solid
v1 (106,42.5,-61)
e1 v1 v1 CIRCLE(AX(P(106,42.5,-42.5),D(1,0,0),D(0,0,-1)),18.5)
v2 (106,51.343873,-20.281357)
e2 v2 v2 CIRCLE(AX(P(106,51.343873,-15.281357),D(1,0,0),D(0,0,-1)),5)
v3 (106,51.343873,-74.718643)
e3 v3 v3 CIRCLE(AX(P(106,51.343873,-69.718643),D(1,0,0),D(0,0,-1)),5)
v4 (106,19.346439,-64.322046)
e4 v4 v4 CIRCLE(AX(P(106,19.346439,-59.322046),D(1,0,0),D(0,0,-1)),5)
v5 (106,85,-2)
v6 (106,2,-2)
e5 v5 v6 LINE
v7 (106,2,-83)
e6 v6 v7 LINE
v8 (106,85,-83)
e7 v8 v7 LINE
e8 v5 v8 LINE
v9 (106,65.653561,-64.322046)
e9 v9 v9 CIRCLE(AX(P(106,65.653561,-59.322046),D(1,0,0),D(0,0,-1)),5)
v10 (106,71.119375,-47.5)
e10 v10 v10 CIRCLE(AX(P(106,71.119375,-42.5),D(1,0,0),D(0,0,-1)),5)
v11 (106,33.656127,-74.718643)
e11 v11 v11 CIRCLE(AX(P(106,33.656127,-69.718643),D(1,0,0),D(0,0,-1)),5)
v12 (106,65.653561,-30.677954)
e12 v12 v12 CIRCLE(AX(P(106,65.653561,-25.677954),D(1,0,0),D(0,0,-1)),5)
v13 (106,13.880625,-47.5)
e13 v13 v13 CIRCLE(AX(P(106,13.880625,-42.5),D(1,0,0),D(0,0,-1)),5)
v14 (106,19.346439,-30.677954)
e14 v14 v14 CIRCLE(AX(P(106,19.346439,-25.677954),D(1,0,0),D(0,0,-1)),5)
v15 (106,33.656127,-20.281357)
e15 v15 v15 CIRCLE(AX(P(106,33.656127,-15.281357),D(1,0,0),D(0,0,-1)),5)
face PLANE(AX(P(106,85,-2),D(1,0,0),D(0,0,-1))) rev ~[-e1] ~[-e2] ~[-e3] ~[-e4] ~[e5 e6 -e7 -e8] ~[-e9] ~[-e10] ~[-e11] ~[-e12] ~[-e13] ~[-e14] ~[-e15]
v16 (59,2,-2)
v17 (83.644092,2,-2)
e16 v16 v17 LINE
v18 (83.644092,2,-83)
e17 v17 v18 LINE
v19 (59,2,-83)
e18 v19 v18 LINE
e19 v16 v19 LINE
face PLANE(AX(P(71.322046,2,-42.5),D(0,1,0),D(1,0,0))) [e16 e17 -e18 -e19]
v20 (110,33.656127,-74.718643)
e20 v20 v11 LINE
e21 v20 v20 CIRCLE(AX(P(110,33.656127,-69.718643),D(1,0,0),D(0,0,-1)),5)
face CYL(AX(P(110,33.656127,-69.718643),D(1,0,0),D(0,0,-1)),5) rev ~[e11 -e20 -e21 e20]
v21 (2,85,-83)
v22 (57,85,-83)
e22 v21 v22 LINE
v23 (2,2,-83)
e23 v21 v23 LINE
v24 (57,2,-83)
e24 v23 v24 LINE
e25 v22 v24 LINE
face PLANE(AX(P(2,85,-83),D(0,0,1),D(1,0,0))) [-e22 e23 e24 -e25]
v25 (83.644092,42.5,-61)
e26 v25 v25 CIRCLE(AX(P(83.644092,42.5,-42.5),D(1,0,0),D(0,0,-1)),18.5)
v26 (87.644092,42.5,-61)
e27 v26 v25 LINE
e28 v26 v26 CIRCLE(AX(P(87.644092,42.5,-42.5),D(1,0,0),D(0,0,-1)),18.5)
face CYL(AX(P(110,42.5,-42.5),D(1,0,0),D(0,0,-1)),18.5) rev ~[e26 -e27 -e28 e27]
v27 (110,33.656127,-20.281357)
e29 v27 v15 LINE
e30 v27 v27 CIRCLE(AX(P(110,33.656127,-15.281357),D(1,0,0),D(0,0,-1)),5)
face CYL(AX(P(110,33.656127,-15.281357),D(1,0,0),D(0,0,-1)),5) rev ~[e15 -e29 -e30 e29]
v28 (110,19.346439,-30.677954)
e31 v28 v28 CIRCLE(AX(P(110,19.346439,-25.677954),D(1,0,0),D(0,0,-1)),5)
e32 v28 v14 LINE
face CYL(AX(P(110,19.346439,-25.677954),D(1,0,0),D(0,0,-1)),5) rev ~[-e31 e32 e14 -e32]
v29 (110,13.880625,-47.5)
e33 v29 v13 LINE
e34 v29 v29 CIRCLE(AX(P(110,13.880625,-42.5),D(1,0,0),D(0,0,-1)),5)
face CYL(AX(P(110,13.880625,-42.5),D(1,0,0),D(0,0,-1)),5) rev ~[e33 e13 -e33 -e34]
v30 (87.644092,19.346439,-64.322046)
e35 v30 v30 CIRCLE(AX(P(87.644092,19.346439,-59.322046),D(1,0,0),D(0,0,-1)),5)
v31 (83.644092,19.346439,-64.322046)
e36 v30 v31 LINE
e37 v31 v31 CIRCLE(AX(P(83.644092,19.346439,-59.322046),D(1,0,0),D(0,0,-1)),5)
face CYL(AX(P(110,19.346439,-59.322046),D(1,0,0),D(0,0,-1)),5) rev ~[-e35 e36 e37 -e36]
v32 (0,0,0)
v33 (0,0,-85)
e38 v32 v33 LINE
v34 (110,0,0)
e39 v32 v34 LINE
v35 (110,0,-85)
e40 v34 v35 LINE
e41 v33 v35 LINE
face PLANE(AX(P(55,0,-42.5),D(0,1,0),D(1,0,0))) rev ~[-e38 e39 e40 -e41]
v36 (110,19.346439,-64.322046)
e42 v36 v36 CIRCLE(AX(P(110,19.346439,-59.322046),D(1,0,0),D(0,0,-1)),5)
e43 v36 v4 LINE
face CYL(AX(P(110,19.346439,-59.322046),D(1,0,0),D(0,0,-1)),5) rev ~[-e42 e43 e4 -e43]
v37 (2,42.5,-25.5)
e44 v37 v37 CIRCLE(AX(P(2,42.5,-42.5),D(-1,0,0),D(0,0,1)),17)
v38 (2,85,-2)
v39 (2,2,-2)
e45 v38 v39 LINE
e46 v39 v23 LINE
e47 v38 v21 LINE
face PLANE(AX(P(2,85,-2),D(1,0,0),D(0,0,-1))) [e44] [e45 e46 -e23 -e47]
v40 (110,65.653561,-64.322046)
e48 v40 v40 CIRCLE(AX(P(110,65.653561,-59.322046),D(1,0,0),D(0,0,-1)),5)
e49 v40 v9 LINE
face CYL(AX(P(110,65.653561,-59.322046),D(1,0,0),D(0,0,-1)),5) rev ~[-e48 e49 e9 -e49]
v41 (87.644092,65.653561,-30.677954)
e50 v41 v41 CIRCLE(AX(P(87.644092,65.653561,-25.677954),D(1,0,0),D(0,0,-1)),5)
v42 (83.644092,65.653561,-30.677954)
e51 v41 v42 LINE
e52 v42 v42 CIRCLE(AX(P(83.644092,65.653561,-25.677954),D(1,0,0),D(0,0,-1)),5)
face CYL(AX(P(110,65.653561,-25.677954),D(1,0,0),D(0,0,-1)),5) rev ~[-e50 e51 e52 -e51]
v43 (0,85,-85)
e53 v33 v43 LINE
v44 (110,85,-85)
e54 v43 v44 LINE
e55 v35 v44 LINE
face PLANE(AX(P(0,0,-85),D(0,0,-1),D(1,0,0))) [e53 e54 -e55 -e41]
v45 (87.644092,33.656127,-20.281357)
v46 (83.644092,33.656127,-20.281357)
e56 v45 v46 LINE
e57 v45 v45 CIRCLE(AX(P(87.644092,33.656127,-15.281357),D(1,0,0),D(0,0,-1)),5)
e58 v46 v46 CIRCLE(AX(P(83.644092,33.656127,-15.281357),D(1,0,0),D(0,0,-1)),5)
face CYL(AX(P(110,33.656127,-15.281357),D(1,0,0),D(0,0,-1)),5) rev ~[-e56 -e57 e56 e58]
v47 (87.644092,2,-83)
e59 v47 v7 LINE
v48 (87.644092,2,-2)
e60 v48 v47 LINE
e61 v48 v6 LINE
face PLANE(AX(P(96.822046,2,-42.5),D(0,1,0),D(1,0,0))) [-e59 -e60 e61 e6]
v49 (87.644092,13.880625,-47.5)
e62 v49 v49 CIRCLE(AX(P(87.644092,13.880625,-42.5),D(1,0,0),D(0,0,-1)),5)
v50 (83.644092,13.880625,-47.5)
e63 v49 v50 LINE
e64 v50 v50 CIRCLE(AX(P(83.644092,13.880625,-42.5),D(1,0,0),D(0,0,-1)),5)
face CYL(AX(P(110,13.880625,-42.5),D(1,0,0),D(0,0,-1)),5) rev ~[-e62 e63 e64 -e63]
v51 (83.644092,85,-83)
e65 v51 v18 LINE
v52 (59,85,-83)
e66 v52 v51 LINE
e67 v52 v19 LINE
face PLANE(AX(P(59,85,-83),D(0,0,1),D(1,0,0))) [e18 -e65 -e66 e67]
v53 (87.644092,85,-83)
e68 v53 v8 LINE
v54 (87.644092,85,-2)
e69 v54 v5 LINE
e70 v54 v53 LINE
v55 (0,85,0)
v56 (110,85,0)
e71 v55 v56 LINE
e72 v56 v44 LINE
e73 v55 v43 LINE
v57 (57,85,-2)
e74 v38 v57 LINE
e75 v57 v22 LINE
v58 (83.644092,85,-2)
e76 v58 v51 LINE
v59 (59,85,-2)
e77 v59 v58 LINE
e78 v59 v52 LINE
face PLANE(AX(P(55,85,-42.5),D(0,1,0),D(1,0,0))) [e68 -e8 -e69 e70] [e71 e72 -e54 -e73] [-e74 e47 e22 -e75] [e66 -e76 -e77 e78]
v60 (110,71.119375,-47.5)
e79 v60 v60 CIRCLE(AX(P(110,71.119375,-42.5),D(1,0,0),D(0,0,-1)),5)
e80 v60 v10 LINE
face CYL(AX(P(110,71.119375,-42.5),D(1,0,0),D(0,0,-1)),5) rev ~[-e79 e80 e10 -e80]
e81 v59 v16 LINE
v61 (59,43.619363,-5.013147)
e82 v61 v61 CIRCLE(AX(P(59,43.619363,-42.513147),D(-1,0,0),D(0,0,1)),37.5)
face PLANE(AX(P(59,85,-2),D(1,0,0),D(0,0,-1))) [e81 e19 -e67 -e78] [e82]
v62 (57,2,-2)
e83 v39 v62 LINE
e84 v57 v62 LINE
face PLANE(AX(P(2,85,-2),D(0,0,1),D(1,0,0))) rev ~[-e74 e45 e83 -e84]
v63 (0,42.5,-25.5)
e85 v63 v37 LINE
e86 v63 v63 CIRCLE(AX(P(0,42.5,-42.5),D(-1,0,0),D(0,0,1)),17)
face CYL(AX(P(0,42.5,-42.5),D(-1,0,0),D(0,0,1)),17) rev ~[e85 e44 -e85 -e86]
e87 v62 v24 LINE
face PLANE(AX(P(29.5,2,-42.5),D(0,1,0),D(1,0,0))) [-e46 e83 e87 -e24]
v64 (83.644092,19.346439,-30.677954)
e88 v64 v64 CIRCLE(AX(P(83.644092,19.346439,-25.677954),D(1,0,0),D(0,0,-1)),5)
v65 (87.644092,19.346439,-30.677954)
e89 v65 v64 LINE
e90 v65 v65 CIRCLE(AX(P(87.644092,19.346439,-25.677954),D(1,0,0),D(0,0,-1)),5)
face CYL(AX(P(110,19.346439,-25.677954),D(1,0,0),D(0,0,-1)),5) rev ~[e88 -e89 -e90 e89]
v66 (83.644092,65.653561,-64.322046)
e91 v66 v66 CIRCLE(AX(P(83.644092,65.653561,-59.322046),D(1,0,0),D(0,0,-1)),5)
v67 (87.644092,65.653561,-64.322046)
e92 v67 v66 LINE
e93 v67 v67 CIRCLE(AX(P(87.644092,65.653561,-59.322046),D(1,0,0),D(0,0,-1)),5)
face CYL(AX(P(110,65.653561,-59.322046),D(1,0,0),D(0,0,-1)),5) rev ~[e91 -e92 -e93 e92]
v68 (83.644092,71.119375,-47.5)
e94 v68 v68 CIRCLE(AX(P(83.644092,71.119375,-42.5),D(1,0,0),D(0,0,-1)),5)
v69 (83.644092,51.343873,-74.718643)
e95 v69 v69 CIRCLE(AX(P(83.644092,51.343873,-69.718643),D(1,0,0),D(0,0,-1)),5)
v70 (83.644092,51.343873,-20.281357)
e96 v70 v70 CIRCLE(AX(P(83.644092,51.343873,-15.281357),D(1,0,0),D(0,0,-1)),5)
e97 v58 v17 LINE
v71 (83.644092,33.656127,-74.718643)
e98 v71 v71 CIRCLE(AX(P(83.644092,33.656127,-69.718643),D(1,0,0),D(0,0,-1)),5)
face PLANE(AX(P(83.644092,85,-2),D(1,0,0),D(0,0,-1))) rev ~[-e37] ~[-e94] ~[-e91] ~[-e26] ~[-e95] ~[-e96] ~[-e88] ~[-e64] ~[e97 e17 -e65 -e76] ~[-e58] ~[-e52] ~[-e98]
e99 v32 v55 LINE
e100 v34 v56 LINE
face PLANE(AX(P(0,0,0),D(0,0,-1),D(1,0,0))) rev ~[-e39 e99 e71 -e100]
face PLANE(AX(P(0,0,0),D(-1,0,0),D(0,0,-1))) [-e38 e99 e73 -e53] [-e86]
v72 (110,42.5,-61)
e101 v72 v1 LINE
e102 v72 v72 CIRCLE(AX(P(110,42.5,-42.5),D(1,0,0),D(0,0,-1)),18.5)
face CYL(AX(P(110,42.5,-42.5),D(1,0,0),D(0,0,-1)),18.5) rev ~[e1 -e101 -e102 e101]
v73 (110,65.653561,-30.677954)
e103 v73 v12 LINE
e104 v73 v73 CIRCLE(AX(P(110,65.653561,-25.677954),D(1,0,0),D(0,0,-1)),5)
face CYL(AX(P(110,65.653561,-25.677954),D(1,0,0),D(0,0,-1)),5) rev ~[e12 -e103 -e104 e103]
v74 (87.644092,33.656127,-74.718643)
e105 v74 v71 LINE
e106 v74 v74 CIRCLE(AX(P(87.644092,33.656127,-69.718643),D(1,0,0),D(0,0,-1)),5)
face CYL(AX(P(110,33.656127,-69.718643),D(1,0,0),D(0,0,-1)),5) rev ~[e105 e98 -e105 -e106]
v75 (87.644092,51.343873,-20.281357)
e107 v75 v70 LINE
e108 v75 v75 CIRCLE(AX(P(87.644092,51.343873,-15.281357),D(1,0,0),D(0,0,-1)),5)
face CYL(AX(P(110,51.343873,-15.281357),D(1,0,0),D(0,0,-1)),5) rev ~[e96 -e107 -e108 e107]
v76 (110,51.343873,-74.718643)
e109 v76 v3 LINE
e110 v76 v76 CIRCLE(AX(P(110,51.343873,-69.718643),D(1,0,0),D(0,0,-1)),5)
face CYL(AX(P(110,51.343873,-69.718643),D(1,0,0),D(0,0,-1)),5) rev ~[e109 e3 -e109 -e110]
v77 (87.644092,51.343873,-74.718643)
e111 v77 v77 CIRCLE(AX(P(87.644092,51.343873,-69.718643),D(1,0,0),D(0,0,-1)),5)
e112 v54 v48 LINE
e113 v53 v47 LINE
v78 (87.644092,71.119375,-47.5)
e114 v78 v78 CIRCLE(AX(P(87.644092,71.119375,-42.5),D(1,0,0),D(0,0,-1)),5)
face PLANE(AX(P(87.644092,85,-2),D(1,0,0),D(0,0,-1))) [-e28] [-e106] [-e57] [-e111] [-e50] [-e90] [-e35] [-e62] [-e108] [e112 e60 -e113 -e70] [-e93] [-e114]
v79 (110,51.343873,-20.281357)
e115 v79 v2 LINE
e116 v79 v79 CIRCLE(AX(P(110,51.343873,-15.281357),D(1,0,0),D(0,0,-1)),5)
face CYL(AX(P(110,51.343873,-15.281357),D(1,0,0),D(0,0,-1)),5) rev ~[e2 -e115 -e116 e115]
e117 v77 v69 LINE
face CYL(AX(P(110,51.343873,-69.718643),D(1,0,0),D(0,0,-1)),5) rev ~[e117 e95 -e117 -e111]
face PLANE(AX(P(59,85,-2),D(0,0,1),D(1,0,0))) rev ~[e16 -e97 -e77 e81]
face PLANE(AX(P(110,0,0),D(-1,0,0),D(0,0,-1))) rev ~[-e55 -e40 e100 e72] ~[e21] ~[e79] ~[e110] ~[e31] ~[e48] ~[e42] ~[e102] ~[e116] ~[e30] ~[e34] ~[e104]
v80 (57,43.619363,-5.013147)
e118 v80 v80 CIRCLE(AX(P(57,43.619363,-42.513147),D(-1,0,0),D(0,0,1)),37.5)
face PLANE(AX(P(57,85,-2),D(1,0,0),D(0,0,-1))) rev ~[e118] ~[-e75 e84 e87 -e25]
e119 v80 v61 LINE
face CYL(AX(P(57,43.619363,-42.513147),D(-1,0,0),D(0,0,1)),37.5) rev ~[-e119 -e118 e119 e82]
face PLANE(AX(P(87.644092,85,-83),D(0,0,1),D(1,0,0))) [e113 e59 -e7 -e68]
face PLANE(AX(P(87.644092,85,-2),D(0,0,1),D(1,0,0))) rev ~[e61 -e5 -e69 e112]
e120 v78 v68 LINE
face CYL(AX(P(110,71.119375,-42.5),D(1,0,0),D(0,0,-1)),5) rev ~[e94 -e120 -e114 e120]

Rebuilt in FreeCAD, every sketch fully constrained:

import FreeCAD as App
import Part
import Sketcher
Q = App.Units.Quantity

doc = App.newDocument("Part")
body = doc.addObject("PartDesign::Body", "Body")

# Sketch on XZ plane
sketch1 = doc.addObject("Sketcher::SketchObject", "Sketch")
body.addObject(sketch1)
sketch1.AttachmentSupport = (doc.XZ_Plane, [""])
sketch1.MapMode = "FlatFace"
sketch1.addGeometry([
    Part.LineSegment(App.Vector(0, -85, 0), App.Vector(0, 0, 0)),
    Part.LineSegment(App.Vector(0, 0, 0), App.Vector(110, 0, 0)),
    Part.LineSegment(App.Vector(110, 0, 0), App.Vector(110, -85, 0)),
    Part.LineSegment(App.Vector(110, -85, 0), App.Vector(0, -85, 0)),
], False)
sketch1.addConstraint([
    Sketcher.Constraint("Coincident", 0, 2, 1, 1),
    Sketcher.Constraint("Coincident", 1, 2, 2, 1),
    Sketcher.Constraint("Coincident", 2, 2, 3, 1),
    Sketcher.Constraint("Coincident", 3, 2, 0, 1),
    Sketcher.Constraint("Vertical", 0),
    Sketcher.Constraint("Horizontal", 1),
    Sketcher.Constraint("Vertical", 2),
    Sketcher.Constraint("Horizontal", 3),
    Sketcher.Constraint("Coincident", 0, 2, -1, 1),
    Sketcher.Constraint("DistanceX", 1, 1, 1, 2, Q("110 mm")),
    Sketcher.Constraint("DistanceY", 0, 1, 0, 2, Q("85 mm")),
])
pad1 = doc.addObject("PartDesign::Pad", "Pad")
body.addObject(pad1)
pad1.Profile = sketch1
pad1.Length = 85
pad1.Reversed = True

# Sketch on XZ plane
sketch2 = doc.addObject("Sketcher::SketchObject", "Sketch001")
body.addObject(sketch2)
sketch2.AttachmentSupport = (doc.XZ_Plane, [""])
sketch2.MapMode = "FlatFace"
sketch2.AttachmentOffset = App.Placement(App.Vector(0, 0, -85), App.Rotation())
sketch2.addGeometry([
    Part.LineSegment(App.Vector(2, -83, 0), App.Vector(2, -2, 0)),  # 0
    Part.LineSegment(App.Vector(2, -2, 0), App.Vector(57, -2, 0)),  # 1
    Part.LineSegment(App.Vector(57, -2, 0), App.Vector(57, -83, 0)),  # 2
    Part.LineSegment(App.Vector(57, -83, 0), App.Vector(2, -83, 0)),  # 3
    Part.LineSegment(App.Vector(59, -83, 0), App.Vector(59, -2, 0)),  # 4
    Part.LineSegment(App.Vector(59, -2, 0), App.Vector(84, -2, 0)),  # 5
    Part.LineSegment(App.Vector(84, -2, 0), App.Vector(84, -83, 0)),  # 6
    Part.LineSegment(App.Vector(84, -83, 0), App.Vector(59, -83, 0)),  # 7
    Part.LineSegment(App.Vector(88, -83, 0), App.Vector(88, -2, 0)),  # 8
    Part.LineSegment(App.Vector(88, -2, 0), App.Vector(106, -2, 0)),  # 9
    Part.LineSegment(App.Vector(106, -2, 0), App.Vector(106, -83, 0)),  # 10
    Part.LineSegment(App.Vector(106, -83, 0), App.Vector(88, -83, 0)),  # 11
], False)
sketch2.addConstraint([
    Sketcher.Constraint("Coincident", 0, 2, 1, 1),
    Sketcher.Constraint("Coincident", 1, 2, 2, 1),
    Sketcher.Constraint("Coincident", 2, 2, 3, 1),
    Sketcher.Constraint("Coincident", 3, 2, 0, 1),
    Sketcher.Constraint("Coincident", 4, 2, 5, 1),
    Sketcher.Constraint("Coincident", 5, 2, 6, 1),
    Sketcher.Constraint("Coincident", 6, 2, 7, 1),
    Sketcher.Constraint("Coincident", 7, 2, 4, 1),
    Sketcher.Constraint("Coincident", 8, 2, 9, 1),
    Sketcher.Constraint("Coincident", 9, 2, 10, 1),
    Sketcher.Constraint("Coincident", 10, 2, 11, 1),
    Sketcher.Constraint("Coincident", 11, 2, 8, 1),
    Sketcher.Constraint("Vertical", 0),
    Sketcher.Constraint("Horizontal", 1),
    Sketcher.Constraint("Vertical", 2),
    Sketcher.Constraint("Horizontal", 3),
    Sketcher.Constraint("Vertical", 4),
    Sketcher.Constraint("Horizontal", 5),
    Sketcher.Constraint("Vertical", 6),
    Sketcher.Constraint("Horizontal", 7),
    Sketcher.Constraint("Vertical", 8),
    Sketcher.Constraint("Horizontal", 9),
    Sketcher.Constraint("Vertical", 10),
    Sketcher.Constraint("Horizontal", 11),
    Sketcher.Constraint("Horizontal", 1, 2, 4, 2),
    Sketcher.Constraint("Horizontal", 3, 2, 6, 2),
    Sketcher.Constraint("Horizontal", 5, 2, 8, 2),
    Sketcher.Constraint("Horizontal", 7, 2, 10, 2),
    Sketcher.Constraint("DistanceX", 1, 1, 1, 2, Q("55 mm")),
    Sketcher.Constraint("DistanceY", 0, 1, 0, 2, Q("81 mm")),
    Sketcher.Constraint("DistanceX", -1, 1, 0, 2, Q("2 mm")),
    Sketcher.Constraint("DistanceY", 0, 2, -1, 1, Q("2 mm")),
    Sketcher.Constraint("DistanceX", -1, 1, 4, 2, Q("59 mm")),
    Sketcher.Constraint("DistanceX", -1, 1, 9, 2, Q("106 mm")),
    Sketcher.Constraint("DistanceX", 5, 2, 8, 2, Q("4 mm")),
    Sketcher.Constraint("DistanceX", 5, 1, 5, 2, Q("24.644092 mm")),
])
pocket1 = doc.addObject("PartDesign::Pocket", "Pocket")
body.addObject(pocket1)
pocket1.Profile = sketch2
pocket1.Length = 83
pocket1.Reversed = True

# Sketch on YZ plane
sketch3 = doc.addObject("Sketcher::SketchObject", "Sketch002")
body.addObject(sketch3)
sketch3.AttachmentSupport = (doc.YZ_Plane, [""])
sketch3.MapMode = "FlatFace"
sketch3.AttachmentOffset = App.Placement(App.Vector(0, 0, 110), App.Rotation())
sketch3.addGeometry(Part.Circle(App.Vector(42, -42, 0), App.Vector(0, 0, 1), 18), False)
sketch3.addConstraint([
    Sketcher.Constraint("Diameter", 0, Q("37 mm")),
    Sketcher.Constraint("DistanceX", -1, 1, 0, 3, Q("42.5 mm")),
    Sketcher.Constraint("DistanceY", 0, 3, -1, 1, Q("42.5 mm")),
])
pocket2 = doc.addObject("PartDesign::Pocket", "Pocket001")
body.addObject(pocket2)
pocket2.Profile = sketch3
pocket2.Length = 30

# Sketch on YZ plane
sketch4 = doc.addObject("Sketcher::SketchObject", "Sketch003")
body.addObject(sketch4)
sketch4.AttachmentSupport = (doc.YZ_Plane, [""])
sketch4.MapMode = "FlatFace"
sketch4.addGeometry(Part.Circle(App.Vector(42, -42, 0), App.Vector(0, 0, 1), 17), False)
sketch4.addConstraint([
    Sketcher.Constraint("Diameter", 0, Q("34 mm")),
    Sketcher.Constraint("DistanceX", -1, 1, 0, 3, Q("42.5 mm")),
    Sketcher.Constraint("DistanceY", 0, 3, -1, 1, Q("42.5 mm")),
])
pocket3 = doc.addObject("PartDesign::Pocket", "Pocket002")
body.addObject(pocket3)
pocket3.Profile = sketch4
pocket3.Length = 2
pocket3.Reversed = True

# Sketch on YZ plane
sketch5 = doc.addObject("Sketcher::SketchObject", "Sketch004")
body.addObject(sketch5)
sketch5.AttachmentSupport = (doc.YZ_Plane, [""])
sketch5.MapMode = "FlatFace"
sketch5.AttachmentOffset = App.Placement(App.Vector(0, 0, 57), App.Rotation())
sketch5.addGeometry(Part.Circle(App.Vector(44, -43, 0), App.Vector(0, 0, 1), 38), False)
sketch5.addConstraint([
    Sketcher.Constraint("Diameter", 0, Q("75 mm")),
    Sketcher.Constraint("DistanceX", -1, 1, 0, 3, Q("43.619363 mm")),
    Sketcher.Constraint("DistanceY", 0, 3, -1, 1, Q("42.513147 mm")),
])
pocket4 = doc.addObject("PartDesign::Pocket", "Pocket003")
body.addObject(pocket4)
pocket4.Profile = sketch5
pocket4.Length = 2
pocket4.Reversed = True

# Sketch on YZ plane
sketch6 = doc.addObject("Sketcher::SketchObject", "Sketch005")
body.addObject(sketch6)
sketch6.AttachmentSupport = (doc.YZ_Plane, [""])
sketch6.MapMode = "FlatFace"
sketch6.AttachmentOffset = App.Placement(App.Vector(0, 0, 110), App.Rotation())
sketch6.addGeometry([
    Part.Circle(App.Vector(42, -42, 0), App.Vector(0, 0, 1), 18),  # 0
    Part.Circle(App.Vector(71, -42, 0), App.Vector(0, 0, 1), 5),  # 1
    Part.Circle(App.Vector(66, -59, 0), App.Vector(0, 0, 1), 5),  # 2
    Part.Circle(App.Vector(51, -70, 0), App.Vector(0, 0, 1), 5),  # 3
    Part.Circle(App.Vector(34, -70, 0), App.Vector(0, 0, 1), 5),  # 4
    Part.Circle(App.Vector(19, -59, 0), App.Vector(0, 0, 1), 5),  # 5
    Part.Circle(App.Vector(14, -42, 0), App.Vector(0, 0, 1), 5),  # 6
    Part.Circle(App.Vector(19, -26, 0), App.Vector(0, 0, 1), 5),  # 7
    Part.Circle(App.Vector(34, -15, 0), App.Vector(0, 0, 1), 5),  # 8
    Part.Circle(App.Vector(51, -15, 0), App.Vector(0, 0, 1), 5),  # 9
    Part.Circle(App.Vector(66, -26, 0), App.Vector(0, 0, 1), 5),  # 10
], False)
sketch6.addConstraint([
    Sketcher.Constraint("Equal", 1, 2),
    Sketcher.Constraint("Equal", 2, 3),
    Sketcher.Constraint("Equal", 3, 4),
    Sketcher.Constraint("Equal", 4, 5),
    Sketcher.Constraint("Equal", 5, 6),
    Sketcher.Constraint("Equal", 6, 7),
    Sketcher.Constraint("Equal", 7, 8),
    Sketcher.Constraint("Equal", 8, 9),
    Sketcher.Constraint("Equal", 9, 10),
    Sketcher.Constraint("Horizontal", 0, 3, 1, 3),
    Sketcher.Constraint("Horizontal", 3, 3, 4, 3),
    Sketcher.Constraint("Horizontal", 2, 3, 5, 3),
    Sketcher.Constraint("Horizontal", 1, 3, 6, 3),
    Sketcher.Constraint("Horizontal", 8, 3, 9, 3),
    Sketcher.Constraint("Horizontal", 7, 3, 10, 3),
    Sketcher.Constraint("Vertical", 5, 3, 7, 3),
    Sketcher.Constraint("Vertical", 4, 3, 8, 3),
    Sketcher.Constraint("Vertical", 3, 3, 9, 3),
    Sketcher.Constraint("Vertical", 2, 3, 10, 3),
    Sketcher.Constraint("Diameter", 0, Q("37 mm")),
    Sketcher.Constraint("Diameter", 1, Q("10 mm")),
    Sketcher.Constraint("DistanceX", -1, 1, 0, 3, Q("42.5 mm")),
    Sketcher.Constraint("DistanceY", 0, 3, -1, 1, Q("42.5 mm")),
    Sketcher.Constraint("DistanceX", 3, 3, 1, 3, Q("19.775502 mm")),
    Sketcher.Constraint("DistanceX", 6, 3, 4, 3, Q("19.775502 mm")),
    Sketcher.Constraint("DistanceX", -1, 1, 2, 3, Q("65.653561 mm")),
    Sketcher.Constraint("DistanceX", -1, 1, 5, 3, Q("19.346439 mm")),
    Sketcher.Constraint("DistanceX", 4, 3, 1, 3, Q("37.463248 mm")),
    Sketcher.Constraint("DistanceY", 4, 3, 7, 3, Q("44.040689 mm")),
    Sketcher.Constraint("DistanceY", 5, 3, 8, 3, Q("44.040689 mm")),
    Sketcher.Constraint("DistanceX", -1, 1, 1, 3, Q("71.119375 mm")),
    Sketcher.Constraint("DistanceY", 2, 3, -1, 1, Q("59.322046 mm")),
    Sketcher.Constraint("DistanceY", 3, 3, -1, 1, Q("69.718643 mm")),
])
pocket5 = doc.addObject("PartDesign::Pocket", "Pocket004")
body.addObject(pocket5)
pocket5.Profile = sketch6
pocket5.Length = 40

doc.recompute()
